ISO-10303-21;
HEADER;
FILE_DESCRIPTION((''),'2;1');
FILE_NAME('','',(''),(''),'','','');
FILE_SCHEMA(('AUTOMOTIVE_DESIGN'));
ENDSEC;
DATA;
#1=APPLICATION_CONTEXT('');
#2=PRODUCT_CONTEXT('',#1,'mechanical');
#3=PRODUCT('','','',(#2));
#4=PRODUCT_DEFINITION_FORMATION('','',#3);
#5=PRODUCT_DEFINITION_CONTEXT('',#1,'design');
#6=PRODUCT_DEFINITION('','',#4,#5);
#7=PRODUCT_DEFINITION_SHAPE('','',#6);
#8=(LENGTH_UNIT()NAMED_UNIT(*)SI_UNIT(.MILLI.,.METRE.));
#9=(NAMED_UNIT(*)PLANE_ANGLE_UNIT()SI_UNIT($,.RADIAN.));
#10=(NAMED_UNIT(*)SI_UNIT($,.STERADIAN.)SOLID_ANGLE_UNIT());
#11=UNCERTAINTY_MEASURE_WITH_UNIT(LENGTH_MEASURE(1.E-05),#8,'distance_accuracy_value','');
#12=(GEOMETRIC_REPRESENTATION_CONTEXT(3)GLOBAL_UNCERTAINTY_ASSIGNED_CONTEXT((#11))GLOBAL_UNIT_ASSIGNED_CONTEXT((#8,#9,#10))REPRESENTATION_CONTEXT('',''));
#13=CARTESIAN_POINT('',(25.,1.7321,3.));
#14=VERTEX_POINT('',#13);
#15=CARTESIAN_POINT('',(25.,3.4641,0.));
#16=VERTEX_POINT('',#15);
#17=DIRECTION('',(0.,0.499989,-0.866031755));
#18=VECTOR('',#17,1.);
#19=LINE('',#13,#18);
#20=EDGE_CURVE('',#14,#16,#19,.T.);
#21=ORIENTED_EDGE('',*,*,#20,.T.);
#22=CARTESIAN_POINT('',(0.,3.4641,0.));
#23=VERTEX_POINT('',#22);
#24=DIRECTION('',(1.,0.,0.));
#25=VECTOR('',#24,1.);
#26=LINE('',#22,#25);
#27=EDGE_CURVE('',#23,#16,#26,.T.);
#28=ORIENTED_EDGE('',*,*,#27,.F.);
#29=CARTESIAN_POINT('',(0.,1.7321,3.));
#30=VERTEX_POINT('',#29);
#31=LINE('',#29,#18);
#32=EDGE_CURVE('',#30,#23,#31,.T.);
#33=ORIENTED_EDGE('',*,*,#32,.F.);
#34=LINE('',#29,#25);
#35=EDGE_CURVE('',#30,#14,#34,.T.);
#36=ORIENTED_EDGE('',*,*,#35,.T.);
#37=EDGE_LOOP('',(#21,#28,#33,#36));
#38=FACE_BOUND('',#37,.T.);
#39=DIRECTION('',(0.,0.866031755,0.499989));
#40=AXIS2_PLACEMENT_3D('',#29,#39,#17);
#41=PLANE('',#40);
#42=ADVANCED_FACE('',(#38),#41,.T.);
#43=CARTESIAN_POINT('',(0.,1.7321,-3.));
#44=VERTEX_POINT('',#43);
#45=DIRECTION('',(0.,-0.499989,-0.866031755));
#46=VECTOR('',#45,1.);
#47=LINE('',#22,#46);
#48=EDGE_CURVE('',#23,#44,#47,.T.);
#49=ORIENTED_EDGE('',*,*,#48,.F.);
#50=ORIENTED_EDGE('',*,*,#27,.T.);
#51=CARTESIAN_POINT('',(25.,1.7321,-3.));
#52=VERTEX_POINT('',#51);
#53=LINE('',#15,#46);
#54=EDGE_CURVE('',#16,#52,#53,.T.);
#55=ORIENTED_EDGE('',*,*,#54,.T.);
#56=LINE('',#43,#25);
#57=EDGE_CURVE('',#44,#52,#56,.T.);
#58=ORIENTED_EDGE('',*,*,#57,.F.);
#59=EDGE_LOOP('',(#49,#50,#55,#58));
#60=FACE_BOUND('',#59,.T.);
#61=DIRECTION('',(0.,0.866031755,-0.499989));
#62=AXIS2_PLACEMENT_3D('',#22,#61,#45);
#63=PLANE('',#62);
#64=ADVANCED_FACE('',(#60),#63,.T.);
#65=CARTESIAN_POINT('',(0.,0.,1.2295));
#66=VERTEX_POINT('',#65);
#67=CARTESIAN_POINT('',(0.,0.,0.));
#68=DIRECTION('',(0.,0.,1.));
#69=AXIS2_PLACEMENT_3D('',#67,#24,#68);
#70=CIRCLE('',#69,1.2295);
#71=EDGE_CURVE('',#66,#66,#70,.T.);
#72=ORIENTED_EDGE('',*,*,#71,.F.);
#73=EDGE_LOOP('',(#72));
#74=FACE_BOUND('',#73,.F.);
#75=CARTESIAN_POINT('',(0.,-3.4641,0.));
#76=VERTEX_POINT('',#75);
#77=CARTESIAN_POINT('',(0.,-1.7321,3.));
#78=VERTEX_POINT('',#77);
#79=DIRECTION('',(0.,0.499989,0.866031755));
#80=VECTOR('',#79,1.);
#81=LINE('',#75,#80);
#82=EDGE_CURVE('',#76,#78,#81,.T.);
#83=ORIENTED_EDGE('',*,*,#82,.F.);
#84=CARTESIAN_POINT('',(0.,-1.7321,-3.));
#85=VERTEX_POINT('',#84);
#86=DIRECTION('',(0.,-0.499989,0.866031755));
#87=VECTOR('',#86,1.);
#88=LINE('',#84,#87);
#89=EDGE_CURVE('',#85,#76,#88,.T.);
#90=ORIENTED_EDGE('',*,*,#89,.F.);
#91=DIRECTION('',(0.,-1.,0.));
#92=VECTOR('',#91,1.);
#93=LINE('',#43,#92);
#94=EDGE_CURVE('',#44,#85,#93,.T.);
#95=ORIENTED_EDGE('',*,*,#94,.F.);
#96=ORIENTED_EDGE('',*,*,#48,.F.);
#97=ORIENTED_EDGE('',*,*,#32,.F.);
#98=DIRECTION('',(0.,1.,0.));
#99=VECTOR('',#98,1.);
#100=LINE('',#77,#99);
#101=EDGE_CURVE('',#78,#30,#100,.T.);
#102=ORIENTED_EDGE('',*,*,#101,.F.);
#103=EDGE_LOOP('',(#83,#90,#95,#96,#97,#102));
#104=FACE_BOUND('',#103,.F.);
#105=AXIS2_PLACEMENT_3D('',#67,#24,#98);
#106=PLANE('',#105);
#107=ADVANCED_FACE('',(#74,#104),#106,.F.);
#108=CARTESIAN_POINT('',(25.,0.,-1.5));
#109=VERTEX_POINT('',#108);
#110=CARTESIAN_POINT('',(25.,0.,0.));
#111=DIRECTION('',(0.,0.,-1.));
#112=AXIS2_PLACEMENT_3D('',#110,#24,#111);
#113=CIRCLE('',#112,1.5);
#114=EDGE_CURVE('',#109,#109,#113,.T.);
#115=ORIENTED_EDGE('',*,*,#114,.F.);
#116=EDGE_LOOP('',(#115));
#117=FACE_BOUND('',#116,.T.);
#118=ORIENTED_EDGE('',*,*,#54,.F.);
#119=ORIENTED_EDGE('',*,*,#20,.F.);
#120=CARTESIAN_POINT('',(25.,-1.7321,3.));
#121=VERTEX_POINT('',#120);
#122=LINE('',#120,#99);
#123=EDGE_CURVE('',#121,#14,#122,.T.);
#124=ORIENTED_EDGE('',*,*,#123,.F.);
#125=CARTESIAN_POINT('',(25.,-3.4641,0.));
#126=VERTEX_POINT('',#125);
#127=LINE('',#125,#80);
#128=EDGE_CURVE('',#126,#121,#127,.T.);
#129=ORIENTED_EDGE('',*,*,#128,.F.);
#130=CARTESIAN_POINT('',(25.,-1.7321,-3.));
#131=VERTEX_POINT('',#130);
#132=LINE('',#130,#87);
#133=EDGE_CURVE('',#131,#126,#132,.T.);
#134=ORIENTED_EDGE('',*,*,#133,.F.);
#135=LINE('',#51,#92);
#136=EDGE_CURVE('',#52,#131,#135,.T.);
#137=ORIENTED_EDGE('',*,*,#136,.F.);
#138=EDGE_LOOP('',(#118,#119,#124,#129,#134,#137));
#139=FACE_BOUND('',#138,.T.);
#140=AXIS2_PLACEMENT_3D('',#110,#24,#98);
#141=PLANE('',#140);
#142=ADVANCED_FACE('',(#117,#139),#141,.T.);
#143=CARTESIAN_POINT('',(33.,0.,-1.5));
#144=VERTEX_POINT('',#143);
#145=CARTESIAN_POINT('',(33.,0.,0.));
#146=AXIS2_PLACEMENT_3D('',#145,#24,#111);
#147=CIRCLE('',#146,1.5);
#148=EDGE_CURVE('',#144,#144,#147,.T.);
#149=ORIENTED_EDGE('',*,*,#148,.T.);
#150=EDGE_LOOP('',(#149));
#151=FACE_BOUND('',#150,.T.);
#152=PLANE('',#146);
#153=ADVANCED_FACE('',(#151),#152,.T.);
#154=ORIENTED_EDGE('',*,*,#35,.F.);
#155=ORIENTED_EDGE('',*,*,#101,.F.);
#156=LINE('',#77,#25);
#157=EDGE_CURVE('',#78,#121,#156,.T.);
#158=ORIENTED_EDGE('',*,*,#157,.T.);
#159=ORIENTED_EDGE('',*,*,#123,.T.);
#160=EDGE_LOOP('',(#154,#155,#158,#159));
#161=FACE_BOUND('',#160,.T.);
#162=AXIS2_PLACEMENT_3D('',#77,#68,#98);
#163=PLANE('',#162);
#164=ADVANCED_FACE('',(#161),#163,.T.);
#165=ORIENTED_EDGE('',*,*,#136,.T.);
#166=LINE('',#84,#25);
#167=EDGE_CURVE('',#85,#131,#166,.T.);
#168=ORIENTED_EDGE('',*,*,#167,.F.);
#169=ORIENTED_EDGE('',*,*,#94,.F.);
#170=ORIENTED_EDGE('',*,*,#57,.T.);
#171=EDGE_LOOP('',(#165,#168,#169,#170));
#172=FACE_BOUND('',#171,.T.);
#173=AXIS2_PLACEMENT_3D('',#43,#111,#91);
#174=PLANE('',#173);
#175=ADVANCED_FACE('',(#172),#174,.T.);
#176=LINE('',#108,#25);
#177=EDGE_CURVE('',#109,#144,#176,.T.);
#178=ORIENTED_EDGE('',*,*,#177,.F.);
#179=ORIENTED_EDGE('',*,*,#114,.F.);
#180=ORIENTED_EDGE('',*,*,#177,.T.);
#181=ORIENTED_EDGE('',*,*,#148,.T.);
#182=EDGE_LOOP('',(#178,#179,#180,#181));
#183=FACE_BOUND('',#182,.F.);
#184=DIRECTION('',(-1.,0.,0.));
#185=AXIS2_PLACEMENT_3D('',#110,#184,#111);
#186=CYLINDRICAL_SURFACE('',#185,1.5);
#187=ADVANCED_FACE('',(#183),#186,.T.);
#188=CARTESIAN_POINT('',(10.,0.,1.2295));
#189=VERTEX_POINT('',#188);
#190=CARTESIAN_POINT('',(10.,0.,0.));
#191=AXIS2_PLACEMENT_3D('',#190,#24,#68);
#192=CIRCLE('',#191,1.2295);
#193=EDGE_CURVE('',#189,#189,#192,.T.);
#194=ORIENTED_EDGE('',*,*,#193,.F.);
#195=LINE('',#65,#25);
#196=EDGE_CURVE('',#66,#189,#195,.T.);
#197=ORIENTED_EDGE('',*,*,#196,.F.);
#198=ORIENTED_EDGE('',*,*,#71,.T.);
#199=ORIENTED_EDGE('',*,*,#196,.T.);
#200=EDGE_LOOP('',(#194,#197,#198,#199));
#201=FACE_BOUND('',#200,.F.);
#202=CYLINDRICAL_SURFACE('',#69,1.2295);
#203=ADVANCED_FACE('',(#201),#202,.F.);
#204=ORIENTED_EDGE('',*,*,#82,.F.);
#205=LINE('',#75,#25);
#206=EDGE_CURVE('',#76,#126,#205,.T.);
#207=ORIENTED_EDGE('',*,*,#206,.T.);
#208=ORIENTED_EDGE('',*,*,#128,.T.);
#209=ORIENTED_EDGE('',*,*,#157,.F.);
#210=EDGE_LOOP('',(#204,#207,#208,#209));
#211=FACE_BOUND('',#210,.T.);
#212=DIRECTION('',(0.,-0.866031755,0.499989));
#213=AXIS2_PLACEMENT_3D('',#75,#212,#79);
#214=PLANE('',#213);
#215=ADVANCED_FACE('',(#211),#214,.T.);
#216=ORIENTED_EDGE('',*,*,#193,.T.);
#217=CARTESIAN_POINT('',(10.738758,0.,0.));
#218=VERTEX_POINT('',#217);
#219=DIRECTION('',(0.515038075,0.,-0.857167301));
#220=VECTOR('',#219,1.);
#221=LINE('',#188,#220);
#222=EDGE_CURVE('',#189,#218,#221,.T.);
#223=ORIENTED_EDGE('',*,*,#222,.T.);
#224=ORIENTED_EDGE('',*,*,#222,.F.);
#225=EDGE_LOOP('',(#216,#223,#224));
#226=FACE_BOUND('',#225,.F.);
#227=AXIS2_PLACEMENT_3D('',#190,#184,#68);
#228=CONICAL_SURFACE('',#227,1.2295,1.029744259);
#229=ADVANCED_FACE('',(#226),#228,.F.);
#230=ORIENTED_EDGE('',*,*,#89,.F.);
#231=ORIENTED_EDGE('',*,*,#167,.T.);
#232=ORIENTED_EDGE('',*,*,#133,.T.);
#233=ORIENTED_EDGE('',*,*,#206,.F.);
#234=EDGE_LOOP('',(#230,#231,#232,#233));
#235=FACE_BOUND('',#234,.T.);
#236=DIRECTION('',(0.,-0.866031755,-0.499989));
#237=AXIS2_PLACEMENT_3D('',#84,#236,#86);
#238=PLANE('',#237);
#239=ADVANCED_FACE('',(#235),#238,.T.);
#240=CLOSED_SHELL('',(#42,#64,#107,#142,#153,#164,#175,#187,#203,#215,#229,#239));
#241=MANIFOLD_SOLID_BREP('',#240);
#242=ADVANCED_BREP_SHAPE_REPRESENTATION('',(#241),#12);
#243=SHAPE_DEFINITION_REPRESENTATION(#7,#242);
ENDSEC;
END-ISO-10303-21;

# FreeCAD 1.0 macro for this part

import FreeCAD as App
import Part
import Sketcher

V = App.Vector
Q = App.Units.Quantity

doc = App.newDocument("Part")
body = doc.addObject("PartDesign::Body", "Body")

# Sketch on YZ plane
sketch1 = body.newObject("Sketcher::SketchObject", "Sketch")
sketch1.AttachmentSupport = (doc.getObject("YZ_Plane"), [""])
sketch1.MapMode = "FlatFace"
sketch1.addGeometry(Part.LineSegment(V(-1.7, -3, 0), V(1.7, -3, 0)), False)
sketch1.addGeometry(Part.LineSegment(V(1.7, -3, 0), V(3.5, 0, 0)), False)
sketch1.addGeometry(Part.LineSegment(V(3.5, 0, 0), V(1.7, 3, 0)), False)
sketch1.addGeometry(Part.LineSegment(V(1.7, 3, 0), V(-1.7, 3, 0)), False)
sketch1.addGeometry(Part.LineSegment(V(-1.7, 3, 0), V(-3.5, 0, 0)), False)
sketch1.addGeometry(Part.LineSegment(V(-3.5, 0, 0), V(-1.7, -3, 0)), False)
sketch1.addConstraint(Sketcher.Constraint("Coincident", 0, 2, 1, 1))
sketch1.addConstraint(Sketcher.Constraint("Coincident", 1, 2, 2, 1))
sketch1.addConstraint(Sketcher.Constraint("Coincident", 2, 2, 3, 1))
sketch1.addConstraint(Sketcher.Constraint("Coincident", 3, 2, 4, 1))
sketch1.addConstraint(Sketcher.Constraint("Coincident", 4, 2, 5, 1))
sketch1.addConstraint(Sketcher.Constraint("Coincident", 5, 2, 0, 1))
sketch1.addConstraint(Sketcher.Constraint("Horizontal", 0))
sketch1.addConstraint(Sketcher.Constraint("Horizontal", 3))
sketch1.addConstraint(Sketcher.Constraint("Symmetric", 0, 2, 3, 2, -1, 1))
sketch1.addConstraint(Sketcher.Constraint("Symmetric", 1, 2, 4, 2, -1, 1))
sketch1.addConstraint(Sketcher.Constraint("PointOnObject", 1, 2, -1))
sketch1.addConstraint(Sketcher.Constraint("Parallel", 2, 5))
sketch1.addConstraint(Sketcher.Constraint("Vertical", 0, 2, 2, 2))
sketch1.addConstraint(Sketcher.Constraint("DistanceY", 0, 2, 2, 2, 6.0))
sketch1.addConstraint(Sketcher.Constraint("Angle", 1, Q("60.0007 deg")))
sketch1.addConstraint(Sketcher.Constraint("DistanceX", 0, 1, 0, 2, 3.4642))
pad1 = body.newObject("PartDesign::Pad", "Pad")
pad1.Profile = sketch1
pad1.Length = 25

# Sketch on YZ plane
sketch2 = body.newObject("Sketcher::SketchObject", "Sketch001")
sketch2.AttachmentSupport = (doc.getObject("YZ_Plane"), [""])
sketch2.MapMode = "FlatFace"
sketch2.AttachmentOffset = App.Placement(V(0, 0, 25), App.Rotation())
sketch2.addGeometry(Part.Circle(V(0, 0, 0), V(0, 0, 1), 1.5), False)
sketch2.addConstraint(Sketcher.Constraint("Coincident", 0, 3, -1, 1))
sketch2.addConstraint(Sketcher.Constraint("Diameter", 0, 3.0))
pad2 = body.newObject("PartDesign::Pad", "Pad001")
pad2.Profile = sketch2
pad2.Length = 8

# Sketch on YZ plane
sketch3 = body.newObject("Sketcher::SketchObject", "Sketch002")
sketch3.AttachmentSupport = (doc.getObject("YZ_Plane"), [""])
sketch3.MapMode = "FlatFace"
sketch3.addGeometry(Part.Circle(V(0, 0, 0), V(0, 0, 1), 1.2), False)
sketch3.addConstraint(Sketcher.Constraint("Coincident", 0, 3, -1, 1))
sketch3.addConstraint(Sketcher.Constraint("Diameter", 0, 2.459))
doc.recompute()
hole = body.newObject("PartDesign::Hole", "Hole")
hole.Profile = sketch3
hole.ThreadType = "None"
hole.Diameter = 2.459
hole.DepthType = "Dimension"
hole.Depth = 10
hole.DrillPoint = "Angled"
hole.DrillPointAngle = 118
hole.Reversed = True

doc.recompute()
